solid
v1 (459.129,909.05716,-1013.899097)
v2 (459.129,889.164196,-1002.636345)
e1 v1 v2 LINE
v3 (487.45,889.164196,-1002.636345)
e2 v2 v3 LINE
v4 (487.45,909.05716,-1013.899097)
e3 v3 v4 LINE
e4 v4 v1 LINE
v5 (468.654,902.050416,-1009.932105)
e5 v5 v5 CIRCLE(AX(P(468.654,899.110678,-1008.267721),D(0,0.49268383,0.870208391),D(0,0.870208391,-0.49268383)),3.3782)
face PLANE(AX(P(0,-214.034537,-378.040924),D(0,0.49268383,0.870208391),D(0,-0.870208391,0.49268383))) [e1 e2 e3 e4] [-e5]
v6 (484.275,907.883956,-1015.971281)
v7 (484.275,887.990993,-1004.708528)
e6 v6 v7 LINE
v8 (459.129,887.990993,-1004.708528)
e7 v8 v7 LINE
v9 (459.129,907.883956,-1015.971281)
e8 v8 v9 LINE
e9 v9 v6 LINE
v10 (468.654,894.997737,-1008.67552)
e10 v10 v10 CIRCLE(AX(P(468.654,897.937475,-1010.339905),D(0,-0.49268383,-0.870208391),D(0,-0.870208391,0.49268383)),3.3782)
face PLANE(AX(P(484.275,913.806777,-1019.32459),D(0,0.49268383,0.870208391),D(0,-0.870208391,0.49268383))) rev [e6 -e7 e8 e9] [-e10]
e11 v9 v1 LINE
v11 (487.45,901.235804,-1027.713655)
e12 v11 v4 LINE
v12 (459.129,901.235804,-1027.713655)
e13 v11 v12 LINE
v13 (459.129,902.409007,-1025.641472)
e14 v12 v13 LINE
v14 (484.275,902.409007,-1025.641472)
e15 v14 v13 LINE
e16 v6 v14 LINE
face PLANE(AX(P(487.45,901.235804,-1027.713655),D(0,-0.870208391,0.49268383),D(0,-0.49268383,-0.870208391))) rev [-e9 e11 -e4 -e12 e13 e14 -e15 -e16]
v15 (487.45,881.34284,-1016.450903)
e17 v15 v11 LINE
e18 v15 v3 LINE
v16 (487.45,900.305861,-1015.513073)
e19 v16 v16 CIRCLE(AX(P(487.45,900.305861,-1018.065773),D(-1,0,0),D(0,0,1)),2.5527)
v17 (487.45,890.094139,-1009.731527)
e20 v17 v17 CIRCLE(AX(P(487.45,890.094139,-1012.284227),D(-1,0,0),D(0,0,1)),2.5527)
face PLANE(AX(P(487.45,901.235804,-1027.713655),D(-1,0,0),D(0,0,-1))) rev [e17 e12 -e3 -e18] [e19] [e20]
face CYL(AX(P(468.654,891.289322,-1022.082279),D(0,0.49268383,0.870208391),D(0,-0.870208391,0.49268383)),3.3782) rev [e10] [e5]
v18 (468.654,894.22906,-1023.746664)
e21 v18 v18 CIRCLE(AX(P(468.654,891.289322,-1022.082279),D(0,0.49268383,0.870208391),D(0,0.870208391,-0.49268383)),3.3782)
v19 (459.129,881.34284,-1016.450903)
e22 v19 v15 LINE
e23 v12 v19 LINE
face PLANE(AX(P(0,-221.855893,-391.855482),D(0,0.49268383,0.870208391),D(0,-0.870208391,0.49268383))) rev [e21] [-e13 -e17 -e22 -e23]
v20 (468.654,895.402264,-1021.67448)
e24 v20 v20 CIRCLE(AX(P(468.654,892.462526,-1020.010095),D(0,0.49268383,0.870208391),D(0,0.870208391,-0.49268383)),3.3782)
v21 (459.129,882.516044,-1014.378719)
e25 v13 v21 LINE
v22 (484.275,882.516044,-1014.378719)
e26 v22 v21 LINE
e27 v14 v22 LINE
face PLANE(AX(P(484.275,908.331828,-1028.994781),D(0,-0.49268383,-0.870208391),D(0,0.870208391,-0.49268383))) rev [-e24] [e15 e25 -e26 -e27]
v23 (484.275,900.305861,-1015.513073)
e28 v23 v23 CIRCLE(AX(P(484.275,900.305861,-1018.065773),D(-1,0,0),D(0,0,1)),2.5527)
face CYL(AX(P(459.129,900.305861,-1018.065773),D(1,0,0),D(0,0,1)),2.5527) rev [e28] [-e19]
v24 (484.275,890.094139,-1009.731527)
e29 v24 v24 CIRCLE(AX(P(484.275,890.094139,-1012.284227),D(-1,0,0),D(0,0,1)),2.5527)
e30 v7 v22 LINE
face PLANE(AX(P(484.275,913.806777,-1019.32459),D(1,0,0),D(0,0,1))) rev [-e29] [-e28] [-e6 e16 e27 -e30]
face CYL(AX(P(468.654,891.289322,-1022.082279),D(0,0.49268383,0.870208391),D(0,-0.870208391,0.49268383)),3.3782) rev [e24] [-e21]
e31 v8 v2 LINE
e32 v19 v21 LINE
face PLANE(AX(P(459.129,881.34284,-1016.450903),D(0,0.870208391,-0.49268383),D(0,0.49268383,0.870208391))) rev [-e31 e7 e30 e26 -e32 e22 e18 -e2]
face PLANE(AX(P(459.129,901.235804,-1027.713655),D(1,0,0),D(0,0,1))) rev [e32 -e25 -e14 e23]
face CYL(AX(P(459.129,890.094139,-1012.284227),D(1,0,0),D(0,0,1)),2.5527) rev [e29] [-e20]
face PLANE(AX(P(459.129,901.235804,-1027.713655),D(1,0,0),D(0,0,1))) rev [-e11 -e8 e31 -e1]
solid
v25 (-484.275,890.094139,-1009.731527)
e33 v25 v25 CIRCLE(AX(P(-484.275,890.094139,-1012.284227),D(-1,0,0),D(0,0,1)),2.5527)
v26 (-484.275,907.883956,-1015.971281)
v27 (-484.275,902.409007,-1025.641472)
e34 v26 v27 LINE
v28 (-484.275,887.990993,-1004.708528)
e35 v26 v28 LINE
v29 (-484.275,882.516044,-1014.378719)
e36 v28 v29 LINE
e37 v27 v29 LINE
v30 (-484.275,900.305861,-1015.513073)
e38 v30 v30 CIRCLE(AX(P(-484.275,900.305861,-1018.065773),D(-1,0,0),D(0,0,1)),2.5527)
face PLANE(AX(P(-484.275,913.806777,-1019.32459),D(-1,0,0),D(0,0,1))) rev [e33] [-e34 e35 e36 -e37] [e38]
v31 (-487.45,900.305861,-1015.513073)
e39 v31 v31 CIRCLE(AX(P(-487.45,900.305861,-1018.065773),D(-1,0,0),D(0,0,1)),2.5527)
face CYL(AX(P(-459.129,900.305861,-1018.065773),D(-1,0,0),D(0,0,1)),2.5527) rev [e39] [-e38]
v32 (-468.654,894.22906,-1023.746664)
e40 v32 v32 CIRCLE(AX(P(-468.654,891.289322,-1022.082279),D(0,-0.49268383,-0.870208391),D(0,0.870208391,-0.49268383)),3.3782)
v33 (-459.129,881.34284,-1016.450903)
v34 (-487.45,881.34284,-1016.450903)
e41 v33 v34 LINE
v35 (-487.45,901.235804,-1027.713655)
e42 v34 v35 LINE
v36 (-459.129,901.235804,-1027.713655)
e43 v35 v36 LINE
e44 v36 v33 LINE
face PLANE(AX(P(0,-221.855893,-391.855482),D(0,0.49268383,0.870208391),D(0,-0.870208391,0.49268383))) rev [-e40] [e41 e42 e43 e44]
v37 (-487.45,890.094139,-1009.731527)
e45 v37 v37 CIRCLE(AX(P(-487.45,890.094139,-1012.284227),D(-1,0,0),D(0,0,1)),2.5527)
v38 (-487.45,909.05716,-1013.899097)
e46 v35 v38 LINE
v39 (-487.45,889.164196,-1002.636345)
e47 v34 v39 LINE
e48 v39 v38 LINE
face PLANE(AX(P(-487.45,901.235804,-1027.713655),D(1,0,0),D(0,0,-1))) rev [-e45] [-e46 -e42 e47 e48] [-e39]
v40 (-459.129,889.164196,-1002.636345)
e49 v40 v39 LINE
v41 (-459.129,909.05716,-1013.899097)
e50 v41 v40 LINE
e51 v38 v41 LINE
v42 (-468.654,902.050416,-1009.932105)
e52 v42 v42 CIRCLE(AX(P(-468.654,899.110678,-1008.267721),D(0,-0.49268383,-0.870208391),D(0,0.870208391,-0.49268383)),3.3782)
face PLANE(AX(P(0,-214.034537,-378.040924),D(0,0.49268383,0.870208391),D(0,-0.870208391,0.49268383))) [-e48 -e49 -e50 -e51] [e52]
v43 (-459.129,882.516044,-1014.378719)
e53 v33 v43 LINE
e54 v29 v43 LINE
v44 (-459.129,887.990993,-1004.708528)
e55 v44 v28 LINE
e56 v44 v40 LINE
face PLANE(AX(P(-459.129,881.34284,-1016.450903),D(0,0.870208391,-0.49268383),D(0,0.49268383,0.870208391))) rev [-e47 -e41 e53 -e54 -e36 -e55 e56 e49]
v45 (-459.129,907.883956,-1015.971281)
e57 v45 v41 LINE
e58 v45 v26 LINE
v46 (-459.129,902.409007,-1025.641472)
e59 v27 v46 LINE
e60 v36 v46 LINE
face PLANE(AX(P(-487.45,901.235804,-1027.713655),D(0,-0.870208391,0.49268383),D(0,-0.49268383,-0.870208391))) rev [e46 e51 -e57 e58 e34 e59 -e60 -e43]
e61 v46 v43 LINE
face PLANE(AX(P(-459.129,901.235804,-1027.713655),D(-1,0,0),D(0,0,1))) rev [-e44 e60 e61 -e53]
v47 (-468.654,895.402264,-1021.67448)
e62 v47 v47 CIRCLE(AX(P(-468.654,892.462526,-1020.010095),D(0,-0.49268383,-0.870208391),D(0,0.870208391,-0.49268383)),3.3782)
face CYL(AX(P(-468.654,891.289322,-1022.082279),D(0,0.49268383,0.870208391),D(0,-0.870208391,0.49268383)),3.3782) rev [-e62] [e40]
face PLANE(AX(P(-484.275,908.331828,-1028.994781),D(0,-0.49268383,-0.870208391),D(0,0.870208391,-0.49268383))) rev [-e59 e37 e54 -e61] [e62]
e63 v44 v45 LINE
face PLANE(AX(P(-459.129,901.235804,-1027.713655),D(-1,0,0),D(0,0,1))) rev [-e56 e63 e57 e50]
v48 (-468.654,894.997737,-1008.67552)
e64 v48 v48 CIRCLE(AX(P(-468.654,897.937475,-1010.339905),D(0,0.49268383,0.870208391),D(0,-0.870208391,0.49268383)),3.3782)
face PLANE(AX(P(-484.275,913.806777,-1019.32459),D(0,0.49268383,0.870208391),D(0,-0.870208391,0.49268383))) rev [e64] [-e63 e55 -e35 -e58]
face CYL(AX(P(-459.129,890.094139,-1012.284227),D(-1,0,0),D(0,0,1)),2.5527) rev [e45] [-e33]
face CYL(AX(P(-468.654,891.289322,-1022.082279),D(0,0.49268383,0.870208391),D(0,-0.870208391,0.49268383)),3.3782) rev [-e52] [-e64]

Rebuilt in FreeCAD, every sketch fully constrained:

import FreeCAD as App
import Part
import Sketcher

V = App.Vector
Q = App.Units.Quantity


def add_polygon(sketch, points):
    """Adds a closed chain of lines whose ends are joined by coincident constraints."""
    first, n = sketch.GeometryCount, len(points)
    for a, b in zip(points, points[1:] + points[:1]):
        sketch.addGeometry(Part.LineSegment(App.Vector(*a, 0), App.Vector(*b, 0)), False)
    for i in range(n):
        sketch.addConstraint(Sketcher.Constraint("Coincident", first + i, 2, first + (i + 1) % n, 1))

doc = App.newDocument("Part")
body = doc.addObject("PartDesign::Body", "Body")

# Sketch on an angled plane
sketch1 = doc.addObject("Sketcher::SketchObject", "Sketch")
body.addObject(sketch1)
sketch1.Placement = App.Placement(V(0, -217.945215, -384.948203), App.Rotation(V(-1, 0, 0), V(0, 0.870208391, -0.49268383), V(0, -0.49268383, -0.870208391), "ZXY"))
add_polygon(sketch1, [(459.129, 1290.600859), (459.129, 1267.740859), (487.45, 1267.740859), (487.45, 1290.600859)])  # lines 0-3
sketch1.addGeometry(Part.Circle(V(468.654, 1279.170859, 0), V(0, 0, 1), 3.3782), False)  # 4
sketch1.addConstraint(Sketcher.Constraint("Vertical", 0))
sketch1.addConstraint(Sketcher.Constraint("Horizontal", 1))
sketch1.addConstraint(Sketcher.Constraint("Vertical", 2))
sketch1.addConstraint(Sketcher.Constraint("Horizontal", 3))
sketch1.addConstraint(Sketcher.Constraint("Diameter", 4, Q("0.266 in")))
sketch1.addConstraint(Sketcher.Constraint("DistanceY", 0, 2, 0, 1, Q("0.9 in")))
sketch1.addConstraint(Sketcher.Constraint("DistanceX", 1, 1, 1, 2, Q("1.115 in")))
sketch1.addConstraint(Sketcher.Constraint("DistanceY", 0, 2, 4, 3, Q("0.45 in")))
sketch1.addConstraint(Sketcher.Constraint("DistanceX", 4, 3, 1, 2, Q("0.74 in")))
sketch1.addConstraint(Sketcher.Constraint("DistanceX", -1, 1, 4, 3, Q("468.654 mm")))
sketch1.addConstraint(Sketcher.Constraint("DistanceY", -1, 1, 4, 3, Q("1279.170859 mm")))
pad1 = doc.addObject("PartDesign::Pad", "Pad")
body.addObject(pad1)
pad1.Profile = sketch1
pad1.Length = Q("0.625 in")
pad1.Midplane = True

# Sketch on an angled plane
sketch2 = doc.addObject("Sketcher::SketchObject", "Sketch001")
body.addObject(sketch2)
sketch2.Placement = App.Placement(V(0, 1103.198733, -624.595421), App.Rotation(V(1, 0, 0), V(0, 0.49268383, 0.870208391), V(0, -0.870208391, 0.49268383), "ZXY"))
add_polygon(sketch2, [(-484.275, -436.806989), (-484.275, -447.919489), (-452.480582, -447.919489), (-452.480582, -436.806989)])  # lines 0-3
sketch2.addConstraint(Sketcher.Constraint("Vertical", 0))
sketch2.addConstraint(Sketcher.Constraint("Horizontal", 1))
sketch2.addConstraint(Sketcher.Constraint("Vertical", 2))
sketch2.addConstraint(Sketcher.Constraint("Horizontal", 3))
sketch2.addConstraint(Sketcher.Constraint("DistanceY", 0, 2, 0, 1, Q("0.4375 in")))
sketch2.addConstraint(Sketcher.Constraint("DistanceX", 0, 2, -1, 1, Q("484.275 mm")))
sketch2.addConstraint(Sketcher.Constraint("DistanceX", 1, 1, 1, 2, Q("31.794418 mm")))
sketch2.addConstraint(Sketcher.Constraint("DistanceY", 0, 2, -1, 1, Q("447.919489 mm")))
pocket1 = doc.addObject("PartDesign::Pocket", "Pocket")
body.addObject(pocket1)
pocket1.Profile = sketch2
pocket1.Type = "ThroughAll"

# Sketch on YZ plane
sketch3 = doc.addObject("Sketcher::SketchObject", "Sketch002")
body.addObject(sketch3)
sketch3.AttachmentSupport = (doc.YZ_Plane, [""])
sketch3.MapMode = "FlatFace"
sketch3.AttachmentOffset = App.Placement(V(0, 0, -487.45), App.Rotation())
sketch3.addGeometry(Part.Circle(V(900.305861, -1018.065773, 0), V(0, 0, 1), 2.5527), False)
sketch3.addGeometry(Part.Circle(V(890.094139, -1012.284227, 0), V(0, 0, 1), 2.5527), False)
sketch3.addGeometry(Part.Circle(V(890.821943, 0, 0), V(0, 0, 1), 2.5527), False)
sketch3.addConstraint(Sketcher.Constraint("Equal", 0, 1))
sketch3.addConstraint(Sketcher.Constraint("Equal", 1, 2))
sketch3.addConstraint(Sketcher.Constraint("PointOnObject", 2, 3, -1))
sketch3.addConstraint(Sketcher.Constraint("Diameter", 0, Q("0.201 in")))
sketch3.addConstraint(Sketcher.Constraint("DistanceX", -1, 1, 0, 3, Q("900.305861 mm")))
sketch3.addConstraint(Sketcher.Constraint("DistanceX", -1, 1, 1, 3, Q("890.094139 mm")))
sketch3.addConstraint(Sketcher.Constraint("DistanceY", 0, 3, -1, 1, Q("1018.065773 mm")))
sketch3.addConstraint(Sketcher.Constraint("DistanceY", 1, 3, -1, 1, Q("1012.284227 mm")))
sketch3.addConstraint(Sketcher.Constraint("DistanceX", -1, 1, 2, 3, Q("890.821943 mm")))
pocket2 = doc.addObject("PartDesign::Pocket", "Pocket001")
body.addObject(pocket2)
pocket2.Profile = sketch3
pocket2.Type = "ThroughAll"
pocket2.Reversed = True
body2 = doc.addObject("PartDesign::Body", "Body001")
doc.recompute()

mirroring = doc.addObject("Part::Mirroring", "Mirroring")
mirroring.Source = body
mirroring.Base = V(0, 0, 0)
mirroring.Normal = V(1, 0, 0)
body2.BaseFeature = mirroring
doc.recompute()
mirroring.Visibility = False

doc.recompute()
